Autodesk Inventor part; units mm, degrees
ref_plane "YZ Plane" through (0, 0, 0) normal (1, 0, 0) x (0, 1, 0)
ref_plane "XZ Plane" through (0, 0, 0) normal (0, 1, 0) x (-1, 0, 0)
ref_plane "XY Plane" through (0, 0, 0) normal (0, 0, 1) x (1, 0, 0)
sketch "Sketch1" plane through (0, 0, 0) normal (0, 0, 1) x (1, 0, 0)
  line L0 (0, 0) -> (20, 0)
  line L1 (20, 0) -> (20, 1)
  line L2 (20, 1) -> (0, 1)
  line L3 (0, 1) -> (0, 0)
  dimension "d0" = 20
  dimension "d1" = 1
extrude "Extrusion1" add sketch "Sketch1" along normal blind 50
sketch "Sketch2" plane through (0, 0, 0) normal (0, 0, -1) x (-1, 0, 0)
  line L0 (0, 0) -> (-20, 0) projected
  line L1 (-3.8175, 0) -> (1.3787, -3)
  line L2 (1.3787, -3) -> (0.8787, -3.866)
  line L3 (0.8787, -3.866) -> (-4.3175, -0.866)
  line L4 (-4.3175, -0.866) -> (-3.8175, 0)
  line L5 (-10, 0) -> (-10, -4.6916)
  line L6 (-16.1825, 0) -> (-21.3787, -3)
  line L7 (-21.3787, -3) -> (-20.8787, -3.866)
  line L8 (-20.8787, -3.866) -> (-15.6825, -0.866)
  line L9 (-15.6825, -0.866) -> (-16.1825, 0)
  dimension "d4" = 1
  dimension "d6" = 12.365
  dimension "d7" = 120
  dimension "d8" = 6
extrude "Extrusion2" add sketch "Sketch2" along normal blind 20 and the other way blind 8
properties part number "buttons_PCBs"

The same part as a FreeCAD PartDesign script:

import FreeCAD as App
import Part
import Sketcher

V = App.Vector
Q = App.Units.Quantity

doc = App.newDocument("Part")
body = doc.addObject("PartDesign::Body", "Body")
body.AllowCompound = True

# Sketch on XY plane
sketch1 = doc.addObject("Sketcher::SketchObject", "Sketch")
body.addObject(sketch1)
sketch1.AttachmentSupport = (doc.XY_Plane, [""])
sketch1.MapMode = "FlatFace"
sketch1.addGeometry([
    Part.LineSegment(V(0, 1, 0), V(0, 0, 0)),
    Part.LineSegment(V(0, 0, 0), V(20, 0, 0)),
    Part.LineSegment(V(20, 0, 0), V(20, 1, 0)),
    Part.LineSegment(V(20, 1, 0), V(0, 1, 0)),
], False)
sketch1.addConstraint([
    Sketcher.Constraint("Coincident", 0, 2, 1, 1),
    Sketcher.Constraint("Coincident", 1, 2, 2, 1),
    Sketcher.Constraint("Coincident", 2, 2, 3, 1),
    Sketcher.Constraint("Coincident", 3, 2, 0, 1),
    Sketcher.Constraint("Vertical", 0),
    Sketcher.Constraint("Horizontal", 1),
    Sketcher.Constraint("Vertical", 2),
    Sketcher.Constraint("Horizontal", 3),
    Sketcher.Constraint("Coincident", 0, 2, -1, 1),
    Sketcher.Constraint("DistanceX", 1, 1, 1, 2, Q("20 mm")),
    Sketcher.Constraint("DistanceY", 0, 2, 0, 1, Q("1 mm")),
])
pad1 = doc.addObject("PartDesign::Pad", "Pad")
body.addObject(pad1)
pad1.Profile = sketch1
pad1.Length = 50

# Sketch on XY plane
sketch2 = doc.addObject("Sketcher::SketchObject", "Sketch001")
body.addObject(sketch2)
sketch2.AttachmentSupport = (doc.XY_Plane, [""])
sketch2.MapMode = "FlatFace"
sketch2.addGeometry([
    Part.LineSegment(V(15.6825, -0.866, 0), V(16.1825, 0, 0)),  # 0
    Part.LineSegment(V(16.1825, 0, 0), V(21.3787, -3, 0)),  # 1
    Part.LineSegment(V(21.3787, -3, 0), V(20.8787, -3.866, 0)),  # 2
    Part.LineSegment(V(20.8787, -3.866, 0), V(15.6825, -0.866, 0)),  # 3
    Part.LineSegment(V(-1.3787, -3, 0), V(3.8175, 0, 0)),  # 4
    Part.LineSegment(V(3.8175, 0, 0), V(4.3175, -0.866, 0)),  # 5
    Part.LineSegment(V(4.3175, -0.866, 0), V(-0.8787, -3.866, 0)),  # 6
    Part.LineSegment(V(-0.8787, -3.866, 0), V(-1.3787, -3, 0)),  # 7
], False)
sketch2.addConstraint([
    Sketcher.Constraint("Coincident", 0, 2, 1, 1),
    Sketcher.Constraint("Coincident", 1, 2, 2, 1),
    Sketcher.Constraint("Coincident", 2, 2, 3, 1),
    Sketcher.Constraint("Coincident", 3, 2, 0, 1),
    Sketcher.Constraint("Coincident", 4, 2, 5, 1),
    Sketcher.Constraint("Coincident", 5, 2, 6, 1),
    Sketcher.Constraint("Coincident", 6, 2, 7, 1),
    Sketcher.Constraint("Coincident", 7, 2, 4, 1),
    Sketcher.Constraint("PointOnObject", 0, 2, -1),
    Sketcher.Constraint("PointOnObject", 4, 2, -1),
    Sketcher.Constraint("Perpendicular", 0, 1),
    Sketcher.Constraint("Perpendicular", 1, 2),
    Sketcher.Constraint("Perpendicular", 2, 3),
    Sketcher.Constraint("Perpendicular", 4, 5),
    Sketcher.Constraint("Perpendicular", 5, 6),
    Sketcher.Constraint("Perpendicular", 6, 7),
    Sketcher.Constraint("Horizontal", 3, 2, 5, 2),
    Sketcher.Constraint("Horizontal", 2, 2, 6, 2),
    Sketcher.Constraint("Equal", 3, 4),
    Sketcher.Constraint("Distance", 0, Q("1 mm")),
    Sketcher.Constraint("Distance", 1, Q("6 mm")),
    Sketcher.Constraint("Angle", 0, Q("59.9993 deg")),
    Sketcher.Constraint("DistanceX", 4, 2, 0, 2, Q("12.365 mm")),
    Sketcher.Constraint("DistanceX", -1, 1, 0, 2, Q("16.1825 mm")),
])
pad2 = doc.addObject("PartDesign::Pad", "Pad001")
body.addObject(pad2)
pad2.Profile = sketch2
pad2.Type = "TwoLengths"
pad2.Length = 20
pad2.Length2 = 8
pad2.Reversed = True

doc.recompute()
